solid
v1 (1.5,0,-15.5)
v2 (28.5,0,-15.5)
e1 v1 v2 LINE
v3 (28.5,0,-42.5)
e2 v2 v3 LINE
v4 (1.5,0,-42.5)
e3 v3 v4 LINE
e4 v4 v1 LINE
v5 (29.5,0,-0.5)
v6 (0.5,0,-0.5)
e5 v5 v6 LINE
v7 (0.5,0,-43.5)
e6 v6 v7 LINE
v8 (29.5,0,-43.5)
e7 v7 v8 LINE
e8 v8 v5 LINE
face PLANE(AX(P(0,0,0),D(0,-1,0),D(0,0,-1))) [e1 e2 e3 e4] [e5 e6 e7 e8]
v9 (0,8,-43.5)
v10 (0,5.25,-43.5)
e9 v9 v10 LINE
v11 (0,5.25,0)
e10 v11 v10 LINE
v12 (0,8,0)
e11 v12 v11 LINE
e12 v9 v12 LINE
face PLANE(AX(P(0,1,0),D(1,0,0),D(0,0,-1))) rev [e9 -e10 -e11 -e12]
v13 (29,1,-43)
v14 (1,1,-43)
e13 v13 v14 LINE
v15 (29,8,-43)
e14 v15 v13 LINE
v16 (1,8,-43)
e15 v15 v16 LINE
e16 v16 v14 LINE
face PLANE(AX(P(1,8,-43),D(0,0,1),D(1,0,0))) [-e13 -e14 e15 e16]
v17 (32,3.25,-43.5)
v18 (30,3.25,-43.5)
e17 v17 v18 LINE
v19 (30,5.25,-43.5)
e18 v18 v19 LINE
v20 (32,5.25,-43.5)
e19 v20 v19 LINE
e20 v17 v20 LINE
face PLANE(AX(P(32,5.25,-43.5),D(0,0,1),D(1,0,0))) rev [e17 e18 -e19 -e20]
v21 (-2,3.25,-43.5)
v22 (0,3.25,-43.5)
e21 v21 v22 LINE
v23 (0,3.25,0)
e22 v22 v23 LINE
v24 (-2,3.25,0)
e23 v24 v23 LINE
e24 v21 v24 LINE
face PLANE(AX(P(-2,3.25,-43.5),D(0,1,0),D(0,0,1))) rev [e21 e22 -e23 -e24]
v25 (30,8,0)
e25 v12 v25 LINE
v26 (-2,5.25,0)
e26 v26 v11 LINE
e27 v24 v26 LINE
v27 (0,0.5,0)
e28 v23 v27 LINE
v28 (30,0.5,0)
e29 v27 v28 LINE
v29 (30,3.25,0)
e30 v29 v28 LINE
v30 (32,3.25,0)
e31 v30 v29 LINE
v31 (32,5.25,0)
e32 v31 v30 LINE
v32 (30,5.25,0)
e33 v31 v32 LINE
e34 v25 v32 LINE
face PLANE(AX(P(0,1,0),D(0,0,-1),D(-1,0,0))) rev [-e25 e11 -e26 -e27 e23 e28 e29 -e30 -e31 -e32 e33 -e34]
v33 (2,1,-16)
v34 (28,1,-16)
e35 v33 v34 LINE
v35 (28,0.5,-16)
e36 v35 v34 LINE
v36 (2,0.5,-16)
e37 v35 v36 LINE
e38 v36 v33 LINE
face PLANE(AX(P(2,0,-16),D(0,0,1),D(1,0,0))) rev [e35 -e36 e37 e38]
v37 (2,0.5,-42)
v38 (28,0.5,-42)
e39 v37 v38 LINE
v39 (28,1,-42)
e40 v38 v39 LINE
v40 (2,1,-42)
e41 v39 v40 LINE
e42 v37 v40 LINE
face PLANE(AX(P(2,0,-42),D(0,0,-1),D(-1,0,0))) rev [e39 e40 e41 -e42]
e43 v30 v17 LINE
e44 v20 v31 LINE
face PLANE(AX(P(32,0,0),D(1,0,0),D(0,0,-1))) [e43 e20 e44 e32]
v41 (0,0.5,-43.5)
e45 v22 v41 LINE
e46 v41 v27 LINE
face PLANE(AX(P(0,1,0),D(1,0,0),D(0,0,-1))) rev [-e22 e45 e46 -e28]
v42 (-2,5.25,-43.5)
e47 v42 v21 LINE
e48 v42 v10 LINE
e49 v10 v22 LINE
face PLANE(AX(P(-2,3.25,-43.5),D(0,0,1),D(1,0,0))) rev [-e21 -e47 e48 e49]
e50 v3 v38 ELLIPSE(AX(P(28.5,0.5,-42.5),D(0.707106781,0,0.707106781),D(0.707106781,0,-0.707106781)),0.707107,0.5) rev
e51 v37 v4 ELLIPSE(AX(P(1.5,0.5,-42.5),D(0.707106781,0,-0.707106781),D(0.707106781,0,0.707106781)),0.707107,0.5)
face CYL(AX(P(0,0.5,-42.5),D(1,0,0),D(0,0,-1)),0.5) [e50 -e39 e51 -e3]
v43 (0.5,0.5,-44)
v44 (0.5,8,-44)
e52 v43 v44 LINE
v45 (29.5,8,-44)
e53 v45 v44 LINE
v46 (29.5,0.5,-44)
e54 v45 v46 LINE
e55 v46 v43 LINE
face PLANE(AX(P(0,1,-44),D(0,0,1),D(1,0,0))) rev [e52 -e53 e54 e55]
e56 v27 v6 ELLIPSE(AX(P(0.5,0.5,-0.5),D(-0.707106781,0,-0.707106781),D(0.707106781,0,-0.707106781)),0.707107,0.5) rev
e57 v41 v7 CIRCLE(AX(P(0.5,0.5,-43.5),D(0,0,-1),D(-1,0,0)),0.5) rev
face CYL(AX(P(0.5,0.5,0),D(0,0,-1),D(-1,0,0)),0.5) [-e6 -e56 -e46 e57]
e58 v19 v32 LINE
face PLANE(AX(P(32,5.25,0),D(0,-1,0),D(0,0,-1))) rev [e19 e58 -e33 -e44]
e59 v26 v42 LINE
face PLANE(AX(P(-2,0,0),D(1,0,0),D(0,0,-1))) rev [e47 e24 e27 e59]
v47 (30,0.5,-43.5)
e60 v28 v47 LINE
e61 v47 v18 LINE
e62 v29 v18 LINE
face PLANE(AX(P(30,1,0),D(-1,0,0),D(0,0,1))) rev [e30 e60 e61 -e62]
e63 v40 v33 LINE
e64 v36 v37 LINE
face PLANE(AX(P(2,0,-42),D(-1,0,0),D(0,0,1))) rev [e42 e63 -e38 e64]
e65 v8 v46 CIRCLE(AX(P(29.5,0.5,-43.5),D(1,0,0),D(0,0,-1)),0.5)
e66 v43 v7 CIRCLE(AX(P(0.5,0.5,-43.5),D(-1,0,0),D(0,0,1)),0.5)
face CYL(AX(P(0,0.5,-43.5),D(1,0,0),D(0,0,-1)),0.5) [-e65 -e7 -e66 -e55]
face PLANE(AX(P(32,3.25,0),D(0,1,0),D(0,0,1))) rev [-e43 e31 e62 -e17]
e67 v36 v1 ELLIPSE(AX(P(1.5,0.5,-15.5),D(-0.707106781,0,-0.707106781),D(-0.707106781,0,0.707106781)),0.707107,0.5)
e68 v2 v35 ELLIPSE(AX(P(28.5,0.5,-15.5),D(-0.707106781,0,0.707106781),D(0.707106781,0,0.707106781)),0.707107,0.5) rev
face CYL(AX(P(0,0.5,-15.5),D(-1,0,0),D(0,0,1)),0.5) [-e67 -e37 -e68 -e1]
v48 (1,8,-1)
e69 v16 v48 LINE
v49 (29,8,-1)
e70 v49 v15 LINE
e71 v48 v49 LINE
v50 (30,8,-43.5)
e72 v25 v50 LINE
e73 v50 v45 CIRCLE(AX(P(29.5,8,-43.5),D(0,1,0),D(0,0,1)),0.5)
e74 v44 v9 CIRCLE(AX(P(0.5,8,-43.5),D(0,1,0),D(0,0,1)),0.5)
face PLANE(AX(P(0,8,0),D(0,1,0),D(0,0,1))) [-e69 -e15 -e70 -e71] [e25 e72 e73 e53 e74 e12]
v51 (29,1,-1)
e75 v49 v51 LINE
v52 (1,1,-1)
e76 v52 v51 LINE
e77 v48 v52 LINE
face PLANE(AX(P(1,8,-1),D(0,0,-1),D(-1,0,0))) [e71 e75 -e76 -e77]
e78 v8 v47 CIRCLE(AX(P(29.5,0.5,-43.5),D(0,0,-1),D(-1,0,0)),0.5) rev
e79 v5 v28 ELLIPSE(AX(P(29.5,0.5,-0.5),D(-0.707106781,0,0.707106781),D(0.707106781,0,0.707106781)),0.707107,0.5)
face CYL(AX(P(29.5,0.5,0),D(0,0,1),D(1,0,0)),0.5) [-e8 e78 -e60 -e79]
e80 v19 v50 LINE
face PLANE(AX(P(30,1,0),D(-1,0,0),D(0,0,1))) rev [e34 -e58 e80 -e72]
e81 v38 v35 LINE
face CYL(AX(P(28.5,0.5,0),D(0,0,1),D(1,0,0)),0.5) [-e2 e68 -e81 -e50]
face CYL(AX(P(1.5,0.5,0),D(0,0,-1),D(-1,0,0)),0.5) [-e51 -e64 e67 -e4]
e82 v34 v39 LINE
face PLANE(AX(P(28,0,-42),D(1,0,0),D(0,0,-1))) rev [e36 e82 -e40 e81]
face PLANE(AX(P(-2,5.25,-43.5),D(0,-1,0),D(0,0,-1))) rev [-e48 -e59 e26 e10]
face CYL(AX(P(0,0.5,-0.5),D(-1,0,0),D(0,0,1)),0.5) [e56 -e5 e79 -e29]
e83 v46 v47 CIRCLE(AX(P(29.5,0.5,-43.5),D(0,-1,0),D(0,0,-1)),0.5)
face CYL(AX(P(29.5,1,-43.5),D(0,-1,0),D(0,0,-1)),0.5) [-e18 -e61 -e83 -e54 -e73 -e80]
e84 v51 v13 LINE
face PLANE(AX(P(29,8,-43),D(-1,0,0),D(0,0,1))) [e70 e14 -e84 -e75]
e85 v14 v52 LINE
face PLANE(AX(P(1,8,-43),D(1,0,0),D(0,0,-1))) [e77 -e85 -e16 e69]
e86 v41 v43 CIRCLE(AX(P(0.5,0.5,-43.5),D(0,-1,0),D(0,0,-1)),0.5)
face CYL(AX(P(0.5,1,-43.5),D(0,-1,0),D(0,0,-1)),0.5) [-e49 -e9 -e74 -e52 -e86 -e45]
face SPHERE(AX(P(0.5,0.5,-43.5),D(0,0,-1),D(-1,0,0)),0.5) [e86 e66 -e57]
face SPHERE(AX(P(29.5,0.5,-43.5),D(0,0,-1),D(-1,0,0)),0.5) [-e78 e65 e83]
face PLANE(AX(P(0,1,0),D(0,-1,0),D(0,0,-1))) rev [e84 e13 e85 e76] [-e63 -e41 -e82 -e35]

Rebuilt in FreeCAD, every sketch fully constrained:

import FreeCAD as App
import Part
import Sketcher
from FreeCAD import Vector


def edges_at(feature, points):
    """Names of the edges that pass closest to the given points."""
    edges = feature.Shape.Edges
    near = lambda p: min(range(len(edges)), key=lambda i: edges[i].distToShape(Part.Vertex(*p))[0])
    return sorted({f"Edge{near(p) + 1}" for p in points})

doc = App.newDocument("Part")
body = doc.addObject("PartDesign::Body", "Body")

# Sketch on XZ plane
sketch1 = doc.addObject("Sketcher::SketchObject", "Sketch")
body.addObject(sketch1)
sketch1.AttachmentSupport = (doc.XZ_Plane, [""])
sketch1.MapMode = "FlatFace"
sketch1.addGeometry(Part.LineSegment(Vector(0, -44, 0), Vector(0, 0, 0)), False)
sketch1.addGeometry(Part.LineSegment(Vector(0, 0, 0), Vector(30, 0, 0)), False)
sketch1.addGeometry(Part.LineSegment(Vector(30, 0, 0), Vector(30, -44, 0)), False)
sketch1.addGeometry(Part.LineSegment(Vector(30, -44, 0), Vector(0, -44, 0)), False)
sketch1.addConstraint(Sketcher.Constraint("Coincident", 0, 2, 1, 1))
sketch1.addConstraint(Sketcher.Constraint("Coincident", 1, 2, 2, 1))
sketch1.addConstraint(Sketcher.Constraint("Coincident", 2, 2, 3, 1))
sketch1.addConstraint(Sketcher.Constraint("Coincident", 3, 2, 0, 1))
sketch1.addConstraint(Sketcher.Constraint("Vertical", 0))
sketch1.addConstraint(Sketcher.Constraint("Horizontal", 1))
sketch1.addConstraint(Sketcher.Constraint("Vertical", 2))
sketch1.addConstraint(Sketcher.Constraint("Horizontal", 3))
sketch1.addConstraint(Sketcher.Constraint("Coincident", 0, 2, -1, 1))
sketch1.addConstraint(Sketcher.Constraint("DistanceX", 1, 1, 1, 2, 30.0))
sketch1.addConstraint(Sketcher.Constraint("DistanceY", 0, 1, 0, 2, 44.0))
pad1 = doc.addObject("PartDesign::Pad", "Pad")
body.addObject(pad1)
pad1.Profile = sketch1
pad1.Length = 1
pad1.Reversed = True

# Sketch on XZ plane
sketch2 = doc.addObject("Sketcher::SketchObject", "Sketch001")
body.addObject(sketch2)
sketch2.AttachmentSupport = (doc.XZ_Plane, [""])
sketch2.MapMode = "FlatFace"
sketch2.AttachmentOffset = App.Placement(Vector(0, 0, -1), App.Rotation())
sketch2.addGeometry(Part.LineSegment(Vector(2, -42, 0), Vector(2, -16, 0)), False)
sketch2.addGeometry(Part.LineSegment(Vector(2, -16, 0), Vector(28, -16, 0)), False)
sketch2.addGeometry(Part.LineSegment(Vector(28, -16, 0), Vector(28, -42, 0)), False)
sketch2.addGeometry(Part.LineSegment(Vector(28, -42, 0), Vector(2, -42, 0)), False)
sketch2.addConstraint(Sketcher.Constraint("Coincident", 0, 2, 1, 1))
sketch2.addConstraint(Sketcher.Constraint("Coincident", 1, 2, 2, 1))
sketch2.addConstraint(Sketcher.Constraint("Coincident", 2, 2, 3, 1))
sketch2.addConstraint(Sketcher.Constraint("Coincident", 3, 2, 0, 1))
sketch2.addConstraint(Sketcher.Constraint("Vertical", 0))
sketch2.addConstraint(Sketcher.Constraint("Horizontal", 1))
sketch2.addConstraint(Sketcher.Constraint("Vertical", 2))
sketch2.addConstraint(Sketcher.Constraint("Horizontal", 3))
sketch2.addConstraint(Sketcher.Constraint("Equal", 3, 0))
sketch2.addConstraint(Sketcher.Constraint("DistanceX", 1, 1, 1, 2, 26.0))
sketch2.addConstraint(Sketcher.Constraint("DistanceX", -1, 1, 0, 2, 2.0))
sketch2.addConstraint(Sketcher.Constraint("DistanceY", 0, 2, -1, 1, 16.0))
pocket1 = doc.addObject("PartDesign::Pocket", "Pocket")
body.addObject(pocket1)
pocket1.Profile = sketch2
pocket1.Length = 1
pocket1.Reversed = True

# Sketch on XZ plane
sketch3 = doc.addObject("Sketcher::SketchObject", "Sketch002")
body.addObject(sketch3)
sketch3.AttachmentSupport = (doc.XZ_Plane, [""])
sketch3.MapMode = "FlatFace"
sketch3.AttachmentOffset = App.Placement(Vector(0, 0, -1), App.Rotation())
sketch3.addGeometry(Part.LineSegment(Vector(0, -44, 0), Vector(0, 0, 0)), False)
sketch3.addGeometry(Part.LineSegment(Vector(0, 0, 0), Vector(30, 0, 0)), False)
sketch3.addGeometry(Part.LineSegment(Vector(30, 0, 0), Vector(30, -44, 0)), False)
sketch3.addGeometry(Part.LineSegment(Vector(30, -44, 0), Vector(0, -44, 0)), False)
sketch3.addGeometry(Part.LineSegment(Vector(29, -1, 0), Vector(1, -1, 0)), False)
sketch3.addGeometry(Part.LineSegment(Vector(1, -1, 0), Vector(1, -43, 0)), False)
sketch3.addGeometry(Part.LineSegment(Vector(1, -43, 0), Vector(29, -43, 0)), False)
sketch3.addGeometry(Part.LineSegment(Vector(29, -43, 0), Vector(29, -1, 0)), False)
sketch3.addConstraint(Sketcher.Constraint("Coincident", 0, 2, 1, 1))
sketch3.addConstraint(Sketcher.Constraint("Coincident", 1, 2, 2, 1))
sketch3.addConstraint(Sketcher.Constraint("Coincident", 2, 2, 3, 1))
sketch3.addConstraint(Sketcher.Constraint("Coincident", 3, 2, 0, 1))
sketch3.addConstraint(Sketcher.Constraint("Coincident", 4, 2, 5, 1))
sketch3.addConstraint(Sketcher.Constraint("Coincident", 5, 2, 6, 1))
sketch3.addConstraint(Sketcher.Constraint("Coincident", 6, 2, 7, 1))
sketch3.addConstraint(Sketcher.Constraint("Coincident", 7, 2, 4, 1))
sketch3.addConstraint(Sketcher.Constraint("Vertical", 0))
sketch3.addConstraint(Sketcher.Constraint("Horizontal", 1))
sketch3.addConstraint(Sketcher.Constraint("Vertical", 2))
sketch3.addConstraint(Sketcher.Constraint("Horizontal", 3))
sketch3.addConstraint(Sketcher.Constraint("Horizontal", 4))
sketch3.addConstraint(Sketcher.Constraint("Vertical", 5))
sketch3.addConstraint(Sketcher.Constraint("Horizontal", 6))
sketch3.addConstraint(Sketcher.Constraint("Vertical", 7))
sketch3.addConstraint(Sketcher.Constraint("Coincident", 0, 2, -1, 1))
sketch3.addConstraint(Sketcher.Constraint("DistanceX", 1, 1, 1, 2, 30.0))
sketch3.addConstraint(Sketcher.Constraint("DistanceX", 4, 2, 4, 1, 28.0))
sketch3.addConstraint(Sketcher.Constraint("DistanceY", 0, 1, 0, 2, 44.0))
sketch3.addConstraint(Sketcher.Constraint("DistanceY", 5, 2, 5, 1, 42.0))
sketch3.addConstraint(Sketcher.Constraint("DistanceX", -1, 1, 4, 2, 1.0))
sketch3.addConstraint(Sketcher.Constraint("DistanceY", 4, 2, -1, 1, 1.0))
pad2 = doc.addObject("PartDesign::Pad", "Pad001")
body.addObject(pad2)
pad2.Profile = sketch3
pad2.Length = 7
pad2.Reversed = True
doc.recompute()

fillet = doc.addObject("PartDesign::Fillet", "Fillet")
body.addObject(fillet)
fillet.Base = (pad2, edges_at(pad2, [
    (2, 0, -29),
    (15, 0, -42),
    (28, 0, -29),
    (15, 0, -16),
    (15, 0, -44),
    (30, 0, -22),
    (15, 0, 0),
    (0, 0, -22),
    (0, 4, -44),
    (30, 4, -44),
]))
fillet.Radius = 0.5

# Sketch on YZ plane
sketch4 = doc.addObject("Sketcher::SketchObject", "Sketch003")
body.addObject(sketch4)
sketch4.AttachmentSupport = (doc.YZ_Plane, [""])
sketch4.MapMode = "FlatFace"
sketch4.addGeometry(Part.LineSegment(Vector(5.2, -43.5, 0), Vector(3.2, -43.5, 0)), False)
sketch4.addGeometry(Part.LineSegment(Vector(3.2, -43.5, 0), Vector(3.2, 0, 0)), False)
sketch4.addGeometry(Part.LineSegment(Vector(3.2, 0, 0), Vector(5.2, 0, 0)), False)
sketch4.addGeometry(Part.LineSegment(Vector(5.2, 0, 0), Vector(5.2, -43.5, 0)), False)
sketch4.addConstraint(Sketcher.Constraint("Coincident", 0, 2, 1, 1))
sketch4.addConstraint(Sketcher.Constraint("Coincident", 1, 2, 2, 1))
sketch4.addConstraint(Sketcher.Constraint("Coincident", 2, 2, 3, 1))
sketch4.addConstraint(Sketcher.Constraint("Coincident", 3, 2, 0, 1))
sketch4.addConstraint(Sketcher.Constraint("Horizontal", 0))
sketch4.addConstraint(Sketcher.Constraint("Vertical", 1))
sketch4.addConstraint(Sketcher.Constraint("Horizontal", 2))
sketch4.addConstraint(Sketcher.Constraint("Vertical", 3))
sketch4.addConstraint(Sketcher.Constraint("PointOnObject", 1, 2, -1))
sketch4.addConstraint(Sketcher.Constraint("DistanceX", 0, 2, 0, 1, 2.0))
sketch4.addConstraint(Sketcher.Constraint("DistanceY", 1, 1, 1, 2, 43.5))
sketch4.addConstraint(Sketcher.Constraint("DistanceX", -1, 1, 0, 2, 3.25))
pad3 = doc.addObject("PartDesign::Pad", "Pad002")
body.addObject(pad3)
pad3.Profile = sketch4
pad3.Length = 2
pad3.Reversed = True

# Sketch on YZ plane
sketch5 = doc.addObject("Sketcher::SketchObject", "Sketch004")
body.addObject(sketch5)
sketch5.AttachmentSupport = (doc.YZ_Plane, [""])
sketch5.MapMode = "FlatFace"
sketch5.AttachmentOffset = App.Placement(Vector(0, 0, 30), App.Rotation())
sketch5.addGeometry(Part.LineSegment(Vector(5.2, 0, 0), Vector(3.2, 0, 0)), False)
sketch5.addGeometry(Part.LineSegment(Vector(3.2, 0, 0), Vector(3.2, -43.5, 0)), False)
sketch5.addGeometry(Part.LineSegment(Vector(3.2, -43.5, 0), Vector(5.2, -43.5, 0)), False)
sketch5.addGeometry(Part.LineSegment(Vector(5.2, -43.5, 0), Vector(5.2, 0, 0)), False)
sketch5.addConstraint(Sketcher.Constraint("Coincident", 0, 2, 1, 1))
sketch5.addConstraint(Sketcher.Constraint("Coincident", 1, 2, 2, 1))
sketch5.addConstraint(Sketcher.Constraint("Coincident", 2, 2, 3, 1))
sketch5.addConstraint(Sketcher.Constraint("Coincident", 3, 2, 0, 1))
sketch5.addConstraint(Sketcher.Constraint("Horizontal", 0))
sketch5.addConstraint(Sketcher.Constraint("Vertical", 1))
sketch5.addConstraint(Sketcher.Constraint("Horizontal", 2))
sketch5.addConstraint(Sketcher.Constraint("Vertical", 3))
sketch5.addConstraint(Sketcher.Constraint("PointOnObject", 0, 2, -1))
sketch5.addConstraint(Sketcher.Constraint("DistanceX", 0, 2, 0, 1, 2.0))
sketch5.addConstraint(Sketcher.Constraint("DistanceY", 1, 2, 1, 1, 43.5))
sketch5.addConstraint(Sketcher.Constraint("DistanceX", -1, 1, 0, 2, 3.25))
pad4 = doc.addObject("PartDesign::Pad", "Pad003")
body.addObject(pad4)
pad4.Profile = sketch5
pad4.Length = 2

doc.recompute()
